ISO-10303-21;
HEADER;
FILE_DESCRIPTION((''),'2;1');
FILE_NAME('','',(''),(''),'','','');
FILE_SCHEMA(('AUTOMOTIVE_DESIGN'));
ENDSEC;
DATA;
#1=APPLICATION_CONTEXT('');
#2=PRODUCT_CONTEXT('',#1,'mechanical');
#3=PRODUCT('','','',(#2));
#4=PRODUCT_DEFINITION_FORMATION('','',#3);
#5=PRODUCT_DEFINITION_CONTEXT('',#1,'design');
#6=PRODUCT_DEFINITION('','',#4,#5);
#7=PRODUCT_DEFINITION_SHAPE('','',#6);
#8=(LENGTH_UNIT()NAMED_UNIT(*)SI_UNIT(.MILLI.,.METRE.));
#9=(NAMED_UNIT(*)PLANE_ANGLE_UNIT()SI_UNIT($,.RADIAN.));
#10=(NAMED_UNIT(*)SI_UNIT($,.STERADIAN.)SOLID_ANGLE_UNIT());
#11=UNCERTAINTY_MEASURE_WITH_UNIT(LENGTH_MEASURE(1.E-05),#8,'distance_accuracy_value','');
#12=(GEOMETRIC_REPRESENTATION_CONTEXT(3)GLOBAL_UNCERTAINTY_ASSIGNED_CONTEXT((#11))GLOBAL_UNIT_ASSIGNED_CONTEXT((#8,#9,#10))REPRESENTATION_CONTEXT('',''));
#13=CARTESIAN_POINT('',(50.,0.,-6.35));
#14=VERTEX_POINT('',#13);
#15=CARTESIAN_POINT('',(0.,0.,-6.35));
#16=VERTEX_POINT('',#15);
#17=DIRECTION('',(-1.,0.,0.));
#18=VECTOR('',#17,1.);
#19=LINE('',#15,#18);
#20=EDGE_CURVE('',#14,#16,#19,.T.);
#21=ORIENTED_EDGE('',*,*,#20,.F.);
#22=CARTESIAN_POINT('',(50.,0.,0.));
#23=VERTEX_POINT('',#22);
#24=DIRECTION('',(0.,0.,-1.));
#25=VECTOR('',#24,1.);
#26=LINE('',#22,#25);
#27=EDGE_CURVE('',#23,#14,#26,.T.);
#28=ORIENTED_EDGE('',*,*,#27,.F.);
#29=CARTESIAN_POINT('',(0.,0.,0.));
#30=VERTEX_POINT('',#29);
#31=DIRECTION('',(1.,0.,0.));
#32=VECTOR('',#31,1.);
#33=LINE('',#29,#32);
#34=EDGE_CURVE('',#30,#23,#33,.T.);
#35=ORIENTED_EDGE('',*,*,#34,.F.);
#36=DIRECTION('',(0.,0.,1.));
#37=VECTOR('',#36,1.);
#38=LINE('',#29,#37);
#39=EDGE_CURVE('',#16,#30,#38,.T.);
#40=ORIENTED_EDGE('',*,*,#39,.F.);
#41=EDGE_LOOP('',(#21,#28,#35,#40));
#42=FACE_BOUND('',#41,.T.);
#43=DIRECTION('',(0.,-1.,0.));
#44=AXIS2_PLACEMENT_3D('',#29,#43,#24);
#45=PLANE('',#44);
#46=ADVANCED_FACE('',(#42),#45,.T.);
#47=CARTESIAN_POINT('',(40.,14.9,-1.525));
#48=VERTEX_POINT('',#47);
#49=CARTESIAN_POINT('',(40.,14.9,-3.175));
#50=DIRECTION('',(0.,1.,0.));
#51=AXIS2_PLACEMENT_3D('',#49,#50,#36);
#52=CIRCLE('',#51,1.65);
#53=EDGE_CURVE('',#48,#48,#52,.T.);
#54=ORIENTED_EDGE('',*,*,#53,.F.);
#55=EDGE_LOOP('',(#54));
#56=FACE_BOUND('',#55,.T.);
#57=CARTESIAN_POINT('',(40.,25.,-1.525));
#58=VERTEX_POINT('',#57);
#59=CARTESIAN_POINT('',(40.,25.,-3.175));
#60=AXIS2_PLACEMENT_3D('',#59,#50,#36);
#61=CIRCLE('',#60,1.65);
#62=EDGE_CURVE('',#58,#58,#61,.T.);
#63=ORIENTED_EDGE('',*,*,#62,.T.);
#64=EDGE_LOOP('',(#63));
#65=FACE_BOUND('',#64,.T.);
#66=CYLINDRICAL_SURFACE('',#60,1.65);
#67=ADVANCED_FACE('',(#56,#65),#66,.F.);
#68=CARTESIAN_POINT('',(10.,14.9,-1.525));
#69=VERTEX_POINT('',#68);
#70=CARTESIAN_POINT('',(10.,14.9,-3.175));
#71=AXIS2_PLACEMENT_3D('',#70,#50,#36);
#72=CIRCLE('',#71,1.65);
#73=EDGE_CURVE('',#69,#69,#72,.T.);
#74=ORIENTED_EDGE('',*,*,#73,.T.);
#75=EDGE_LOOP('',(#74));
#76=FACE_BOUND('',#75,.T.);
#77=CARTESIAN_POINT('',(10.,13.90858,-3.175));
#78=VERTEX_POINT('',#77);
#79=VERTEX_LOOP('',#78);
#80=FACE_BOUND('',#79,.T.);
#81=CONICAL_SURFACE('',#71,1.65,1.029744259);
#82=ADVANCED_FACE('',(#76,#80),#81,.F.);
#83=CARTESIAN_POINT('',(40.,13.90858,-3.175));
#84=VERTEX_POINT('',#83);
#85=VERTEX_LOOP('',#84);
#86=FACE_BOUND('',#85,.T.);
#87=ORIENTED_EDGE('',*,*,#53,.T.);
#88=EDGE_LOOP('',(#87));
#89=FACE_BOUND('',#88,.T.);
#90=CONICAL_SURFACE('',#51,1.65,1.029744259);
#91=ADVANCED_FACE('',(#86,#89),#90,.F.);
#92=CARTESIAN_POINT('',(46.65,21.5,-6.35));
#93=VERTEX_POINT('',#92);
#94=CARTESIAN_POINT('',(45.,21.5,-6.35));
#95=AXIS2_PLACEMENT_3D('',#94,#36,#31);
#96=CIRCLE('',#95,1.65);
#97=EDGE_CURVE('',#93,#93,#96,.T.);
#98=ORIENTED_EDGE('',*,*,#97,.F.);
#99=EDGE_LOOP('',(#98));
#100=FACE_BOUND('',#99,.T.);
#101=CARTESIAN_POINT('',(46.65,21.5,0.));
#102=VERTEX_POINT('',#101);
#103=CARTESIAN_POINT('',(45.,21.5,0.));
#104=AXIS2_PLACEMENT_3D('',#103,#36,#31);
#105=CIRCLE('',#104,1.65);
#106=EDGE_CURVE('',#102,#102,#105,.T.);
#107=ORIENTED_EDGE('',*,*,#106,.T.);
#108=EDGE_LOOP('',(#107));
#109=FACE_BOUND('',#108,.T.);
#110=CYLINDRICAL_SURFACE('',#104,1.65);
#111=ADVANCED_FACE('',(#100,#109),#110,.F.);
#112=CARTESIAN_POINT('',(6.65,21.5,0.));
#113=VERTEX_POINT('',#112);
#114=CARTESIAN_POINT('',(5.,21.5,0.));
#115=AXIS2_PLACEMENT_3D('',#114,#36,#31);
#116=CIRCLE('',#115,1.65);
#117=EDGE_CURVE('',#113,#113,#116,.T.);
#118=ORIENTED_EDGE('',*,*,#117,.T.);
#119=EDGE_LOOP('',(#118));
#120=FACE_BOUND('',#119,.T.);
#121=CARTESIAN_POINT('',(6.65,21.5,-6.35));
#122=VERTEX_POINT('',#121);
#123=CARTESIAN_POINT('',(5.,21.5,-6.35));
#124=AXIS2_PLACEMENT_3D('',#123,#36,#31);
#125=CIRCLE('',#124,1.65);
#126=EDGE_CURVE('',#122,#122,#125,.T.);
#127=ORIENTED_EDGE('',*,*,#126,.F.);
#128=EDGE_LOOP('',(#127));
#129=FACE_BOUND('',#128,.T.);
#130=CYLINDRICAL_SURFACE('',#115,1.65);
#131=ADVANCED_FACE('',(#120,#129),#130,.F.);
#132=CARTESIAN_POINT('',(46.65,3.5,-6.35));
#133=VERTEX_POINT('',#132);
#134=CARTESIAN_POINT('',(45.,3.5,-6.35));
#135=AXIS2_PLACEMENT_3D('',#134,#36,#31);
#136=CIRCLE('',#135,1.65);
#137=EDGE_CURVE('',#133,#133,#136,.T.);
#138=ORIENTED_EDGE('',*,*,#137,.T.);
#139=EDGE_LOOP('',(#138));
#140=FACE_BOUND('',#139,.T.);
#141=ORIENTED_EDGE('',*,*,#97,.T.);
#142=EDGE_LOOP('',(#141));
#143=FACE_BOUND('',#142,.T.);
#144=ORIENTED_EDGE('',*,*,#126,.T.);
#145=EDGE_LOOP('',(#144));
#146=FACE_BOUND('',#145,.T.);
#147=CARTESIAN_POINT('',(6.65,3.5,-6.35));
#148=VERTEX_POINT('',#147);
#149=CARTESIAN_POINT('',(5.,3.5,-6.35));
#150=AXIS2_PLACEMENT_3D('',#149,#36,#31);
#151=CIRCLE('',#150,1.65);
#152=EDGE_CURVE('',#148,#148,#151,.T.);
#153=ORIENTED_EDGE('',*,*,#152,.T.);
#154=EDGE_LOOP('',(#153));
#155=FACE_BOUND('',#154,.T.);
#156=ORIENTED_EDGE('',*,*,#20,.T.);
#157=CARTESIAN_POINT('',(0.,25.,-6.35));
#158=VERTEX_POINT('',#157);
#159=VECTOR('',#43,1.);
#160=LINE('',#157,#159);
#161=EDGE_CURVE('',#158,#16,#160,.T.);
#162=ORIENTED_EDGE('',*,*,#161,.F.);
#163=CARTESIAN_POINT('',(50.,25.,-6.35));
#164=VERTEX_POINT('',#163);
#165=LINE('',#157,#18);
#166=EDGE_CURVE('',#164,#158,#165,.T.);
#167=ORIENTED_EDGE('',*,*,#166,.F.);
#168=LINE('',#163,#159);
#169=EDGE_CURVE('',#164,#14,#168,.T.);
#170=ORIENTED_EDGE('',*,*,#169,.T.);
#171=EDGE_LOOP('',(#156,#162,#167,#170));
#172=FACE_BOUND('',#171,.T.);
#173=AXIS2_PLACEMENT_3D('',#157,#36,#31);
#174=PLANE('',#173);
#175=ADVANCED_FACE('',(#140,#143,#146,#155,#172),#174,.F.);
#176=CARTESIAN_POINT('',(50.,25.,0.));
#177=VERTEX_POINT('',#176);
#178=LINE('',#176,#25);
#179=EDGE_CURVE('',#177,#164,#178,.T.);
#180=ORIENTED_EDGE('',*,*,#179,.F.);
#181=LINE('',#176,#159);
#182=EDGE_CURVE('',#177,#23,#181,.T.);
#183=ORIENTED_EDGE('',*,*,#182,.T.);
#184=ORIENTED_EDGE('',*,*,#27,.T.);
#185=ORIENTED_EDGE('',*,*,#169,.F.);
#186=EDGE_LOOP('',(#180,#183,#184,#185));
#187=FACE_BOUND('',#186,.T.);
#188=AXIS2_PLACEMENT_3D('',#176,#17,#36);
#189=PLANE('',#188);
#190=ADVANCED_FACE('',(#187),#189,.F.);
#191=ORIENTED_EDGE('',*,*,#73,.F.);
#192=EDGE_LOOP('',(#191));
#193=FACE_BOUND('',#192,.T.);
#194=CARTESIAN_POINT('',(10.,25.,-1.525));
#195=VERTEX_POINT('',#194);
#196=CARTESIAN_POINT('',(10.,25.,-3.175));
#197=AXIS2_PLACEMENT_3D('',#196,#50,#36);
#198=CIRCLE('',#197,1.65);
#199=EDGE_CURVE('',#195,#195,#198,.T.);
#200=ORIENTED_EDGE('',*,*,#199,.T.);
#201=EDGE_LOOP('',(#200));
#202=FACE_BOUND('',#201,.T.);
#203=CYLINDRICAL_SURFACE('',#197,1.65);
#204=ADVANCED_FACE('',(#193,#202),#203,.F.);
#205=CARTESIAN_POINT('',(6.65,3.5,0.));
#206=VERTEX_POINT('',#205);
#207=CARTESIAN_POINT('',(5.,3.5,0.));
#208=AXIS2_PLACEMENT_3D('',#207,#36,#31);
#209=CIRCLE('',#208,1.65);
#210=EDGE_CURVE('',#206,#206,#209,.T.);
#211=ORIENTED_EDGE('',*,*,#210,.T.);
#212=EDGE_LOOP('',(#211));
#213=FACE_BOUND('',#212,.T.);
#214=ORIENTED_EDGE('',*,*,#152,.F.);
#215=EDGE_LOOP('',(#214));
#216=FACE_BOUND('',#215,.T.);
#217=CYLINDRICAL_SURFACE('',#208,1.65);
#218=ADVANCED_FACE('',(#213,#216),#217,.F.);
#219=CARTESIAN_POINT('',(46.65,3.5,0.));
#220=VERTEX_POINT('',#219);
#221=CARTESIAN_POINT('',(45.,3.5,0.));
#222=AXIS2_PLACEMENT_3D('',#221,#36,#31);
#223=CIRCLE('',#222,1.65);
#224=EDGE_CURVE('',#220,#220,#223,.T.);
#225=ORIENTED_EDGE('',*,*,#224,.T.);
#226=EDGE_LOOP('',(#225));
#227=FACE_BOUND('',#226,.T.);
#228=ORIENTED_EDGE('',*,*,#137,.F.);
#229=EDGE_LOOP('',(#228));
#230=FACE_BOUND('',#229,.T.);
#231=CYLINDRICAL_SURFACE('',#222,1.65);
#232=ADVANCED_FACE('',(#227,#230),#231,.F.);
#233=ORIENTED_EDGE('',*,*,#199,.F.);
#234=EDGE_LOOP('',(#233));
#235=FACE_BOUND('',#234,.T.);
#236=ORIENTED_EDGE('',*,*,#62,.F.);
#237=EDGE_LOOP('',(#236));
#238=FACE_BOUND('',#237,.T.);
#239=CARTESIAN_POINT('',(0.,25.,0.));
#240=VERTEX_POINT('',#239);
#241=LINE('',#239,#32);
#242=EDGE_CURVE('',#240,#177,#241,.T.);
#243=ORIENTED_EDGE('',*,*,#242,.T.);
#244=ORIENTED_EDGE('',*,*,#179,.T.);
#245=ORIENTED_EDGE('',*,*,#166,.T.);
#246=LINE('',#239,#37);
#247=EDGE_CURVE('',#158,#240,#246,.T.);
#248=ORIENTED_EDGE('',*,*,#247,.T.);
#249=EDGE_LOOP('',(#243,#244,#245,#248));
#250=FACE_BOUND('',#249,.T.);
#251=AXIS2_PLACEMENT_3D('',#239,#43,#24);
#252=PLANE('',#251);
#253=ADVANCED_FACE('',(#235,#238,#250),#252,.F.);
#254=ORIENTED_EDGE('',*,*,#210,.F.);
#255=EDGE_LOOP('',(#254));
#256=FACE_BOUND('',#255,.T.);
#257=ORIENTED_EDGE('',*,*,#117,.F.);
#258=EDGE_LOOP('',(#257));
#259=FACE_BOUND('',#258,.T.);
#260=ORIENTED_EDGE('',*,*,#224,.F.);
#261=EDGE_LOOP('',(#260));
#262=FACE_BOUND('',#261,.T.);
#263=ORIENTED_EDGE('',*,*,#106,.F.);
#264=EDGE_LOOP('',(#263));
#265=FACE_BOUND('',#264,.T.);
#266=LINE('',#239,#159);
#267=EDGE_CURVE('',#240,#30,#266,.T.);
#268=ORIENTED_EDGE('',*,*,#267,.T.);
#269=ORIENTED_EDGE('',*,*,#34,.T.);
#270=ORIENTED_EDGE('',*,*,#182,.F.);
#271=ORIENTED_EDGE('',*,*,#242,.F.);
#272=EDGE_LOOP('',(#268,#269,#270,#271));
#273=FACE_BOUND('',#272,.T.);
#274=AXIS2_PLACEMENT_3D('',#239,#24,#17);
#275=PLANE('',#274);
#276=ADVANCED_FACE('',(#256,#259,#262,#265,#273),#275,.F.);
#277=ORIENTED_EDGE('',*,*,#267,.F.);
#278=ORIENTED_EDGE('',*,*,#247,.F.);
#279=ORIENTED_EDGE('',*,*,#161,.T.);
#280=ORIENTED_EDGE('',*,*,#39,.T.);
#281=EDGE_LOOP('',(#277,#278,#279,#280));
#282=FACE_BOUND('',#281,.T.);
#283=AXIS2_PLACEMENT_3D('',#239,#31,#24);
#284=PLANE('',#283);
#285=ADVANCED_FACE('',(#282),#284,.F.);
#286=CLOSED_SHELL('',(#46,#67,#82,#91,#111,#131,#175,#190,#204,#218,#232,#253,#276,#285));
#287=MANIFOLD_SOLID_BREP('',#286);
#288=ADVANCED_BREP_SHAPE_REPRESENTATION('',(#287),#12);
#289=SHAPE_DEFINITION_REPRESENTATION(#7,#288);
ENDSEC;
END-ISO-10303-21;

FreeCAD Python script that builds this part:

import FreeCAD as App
import Part
import Sketcher
Q = App.Units.Quantity


def add_polygon(sketch, points):
    """Adds a closed chain of lines whose ends are joined by coincident constraints."""
    first, n = sketch.GeometryCount, len(points)
    for a, b in zip(points, points[1:] + points[:1]):
        sketch.addGeometry(Part.LineSegment(App.Vector(*a, 0), App.Vector(*b, 0)), False)
    for i in range(n):
        sketch.addConstraint(Sketcher.Constraint("Coincident", first + i, 2, first + (i + 1) % n, 1))

doc = App.newDocument("Part")
body = doc.addObject("PartDesign::Body", "Body")

# Sketch on XZ plane
sketch1 = body.newObject("Sketcher::SketchObject", "Sketch")
sketch1.AttachmentSupport = (doc.getObject("XZ_Plane"), [""])
sketch1.MapMode = "FlatFace"
add_polygon(sketch1, [(0, -6), (0, 0), (50, 0), (50, -6)])  # lines 0-3
sketch1.addConstraint(Sketcher.Constraint("Vertical", 0))
sketch1.addConstraint(Sketcher.Constraint("Horizontal", 1))
sketch1.addConstraint(Sketcher.Constraint("Vertical", 2))
sketch1.addConstraint(Sketcher.Constraint("Horizontal", 3))
sketch1.addConstraint(Sketcher.Constraint("Coincident", 0, 2, -1, 1))
sketch1.addConstraint(Sketcher.Constraint("DistanceX", 1, 1, 1, 2, Q("50 mm")))
sketch1.addConstraint(Sketcher.Constraint("DistanceY", 0, 1, 0, 2, Q("6.35 mm")))
pad1 = body.newObject("PartDesign::Pad", "Pad")
pad1.Profile = sketch1
pad1.Length = 25
pad1.Reversed = True

# Sketch on XZ plane
sketch2 = body.newObject("Sketcher::SketchObject", "Sketch001")
sketch2.AttachmentSupport = (doc.getObject("XZ_Plane"), [""])
sketch2.MapMode = "FlatFace"
sketch2.AttachmentOffset = App.Placement(App.Vector(0, 0, -25), App.Rotation())
sketch2.addGeometry(Part.Circle(App.Vector(40, -3.2, 0), App.Vector(0, 0, 1), 1.6), False)
sketch2.addGeometry(Part.Circle(App.Vector(10, -3.2, 0), App.Vector(0, 0, 1), 1.6), False)
sketch2.addConstraint(Sketcher.Constraint("Equal", 0, 1))
sketch2.addConstraint(Sketcher.Constraint("Horizontal", 0, 3, 1, 3))
sketch2.addConstraint(Sketcher.Constraint("Diameter", 0, Q("3.3 mm")))
sketch2.addConstraint(Sketcher.Constraint("DistanceX", -1, 1, 0, 3, Q("40 mm")))
sketch2.addConstraint(Sketcher.Constraint("DistanceX", -1, 1, 1, 3, Q("10 mm")))
sketch2.addConstraint(Sketcher.Constraint("DistanceY", 0, 3, -1, 1, Q("3.175 mm")))
doc.recompute()
hole = body.newObject("PartDesign::Hole", "Hole")
hole.Profile = sketch2
hole.ThreadType = "None"
hole.Diameter = 3.3
hole.DepthType = "Dimension"
hole.Depth = 10.1
hole.DrillPoint = "Angled"
hole.DrillPointAngle = 118
hole.Reversed = True

# Sketch on XY plane
sketch3 = body.newObject("Sketcher::SketchObject", "Sketch002")
sketch3.AttachmentSupport = (doc.getObject("XY_Plane"), [""])
sketch3.MapMode = "FlatFace"
sketch3.addGeometry(Part.Circle(App.Vector(5, 21.5, 0), App.Vector(0, 0, 1), 1.6), False)
sketch3.addGeometry(Part.Circle(App.Vector(45, 21.5, 0), App.Vector(0, 0, 1), 1.6), False)
sketch3.addGeometry(Part.Circle(App.Vector(45, 3.5, 0), App.Vector(0, 0, 1), 1.6), False)
sketch3.addGeometry(Part.Circle(App.Vector(5, 3.5, 0), App.Vector(0, 0, 1), 1.6), False)
sketch3.addConstraint(Sketcher.Constraint("Equal", 0, 1))
sketch3.addConstraint(Sketcher.Constraint("Equal", 1, 2))
sketch3.addConstraint(Sketcher.Constraint("Equal", 2, 3))
sketch3.addConstraint(Sketcher.Constraint("Horizontal", 0, 3, 1, 3))
sketch3.addConstraint(Sketcher.Constraint("Horizontal", 2, 3, 3, 3))
sketch3.addConstraint(Sketcher.Constraint("Vertical", 1, 3, 2, 3))
sketch3.addConstraint(Sketcher.Constraint("Vertical", 0, 3, 3, 3))
sketch3.addConstraint(Sketcher.Constraint("Diameter", 0, Q("3.3 mm")))
sketch3.addConstraint(Sketcher.Constraint("DistanceX", -1, 1, 0, 3, Q("5 mm")))
sketch3.addConstraint(Sketcher.Constraint("DistanceX", -1, 1, 1, 3, Q("45 mm")))
sketch3.addConstraint(Sketcher.Constraint("DistanceY", 2, 3, 1, 3, Q("18 mm")))
sketch3.addConstraint(Sketcher.Constraint("DistanceY", -1, 1, 0, 3, Q("21.5 mm")))
doc.recompute()
hole2 = body.newObject("PartDesign::Hole", "Hole001")
hole2.Profile = sketch3
hole2.ThreadType = "None"
hole2.Diameter = 3.3
hole2.DepthType = "Dimension"
hole2.Depth = 10.1
hole2.DrillPoint = "Angled"
hole2.DrillPointAngle = 118

doc.recompute()
